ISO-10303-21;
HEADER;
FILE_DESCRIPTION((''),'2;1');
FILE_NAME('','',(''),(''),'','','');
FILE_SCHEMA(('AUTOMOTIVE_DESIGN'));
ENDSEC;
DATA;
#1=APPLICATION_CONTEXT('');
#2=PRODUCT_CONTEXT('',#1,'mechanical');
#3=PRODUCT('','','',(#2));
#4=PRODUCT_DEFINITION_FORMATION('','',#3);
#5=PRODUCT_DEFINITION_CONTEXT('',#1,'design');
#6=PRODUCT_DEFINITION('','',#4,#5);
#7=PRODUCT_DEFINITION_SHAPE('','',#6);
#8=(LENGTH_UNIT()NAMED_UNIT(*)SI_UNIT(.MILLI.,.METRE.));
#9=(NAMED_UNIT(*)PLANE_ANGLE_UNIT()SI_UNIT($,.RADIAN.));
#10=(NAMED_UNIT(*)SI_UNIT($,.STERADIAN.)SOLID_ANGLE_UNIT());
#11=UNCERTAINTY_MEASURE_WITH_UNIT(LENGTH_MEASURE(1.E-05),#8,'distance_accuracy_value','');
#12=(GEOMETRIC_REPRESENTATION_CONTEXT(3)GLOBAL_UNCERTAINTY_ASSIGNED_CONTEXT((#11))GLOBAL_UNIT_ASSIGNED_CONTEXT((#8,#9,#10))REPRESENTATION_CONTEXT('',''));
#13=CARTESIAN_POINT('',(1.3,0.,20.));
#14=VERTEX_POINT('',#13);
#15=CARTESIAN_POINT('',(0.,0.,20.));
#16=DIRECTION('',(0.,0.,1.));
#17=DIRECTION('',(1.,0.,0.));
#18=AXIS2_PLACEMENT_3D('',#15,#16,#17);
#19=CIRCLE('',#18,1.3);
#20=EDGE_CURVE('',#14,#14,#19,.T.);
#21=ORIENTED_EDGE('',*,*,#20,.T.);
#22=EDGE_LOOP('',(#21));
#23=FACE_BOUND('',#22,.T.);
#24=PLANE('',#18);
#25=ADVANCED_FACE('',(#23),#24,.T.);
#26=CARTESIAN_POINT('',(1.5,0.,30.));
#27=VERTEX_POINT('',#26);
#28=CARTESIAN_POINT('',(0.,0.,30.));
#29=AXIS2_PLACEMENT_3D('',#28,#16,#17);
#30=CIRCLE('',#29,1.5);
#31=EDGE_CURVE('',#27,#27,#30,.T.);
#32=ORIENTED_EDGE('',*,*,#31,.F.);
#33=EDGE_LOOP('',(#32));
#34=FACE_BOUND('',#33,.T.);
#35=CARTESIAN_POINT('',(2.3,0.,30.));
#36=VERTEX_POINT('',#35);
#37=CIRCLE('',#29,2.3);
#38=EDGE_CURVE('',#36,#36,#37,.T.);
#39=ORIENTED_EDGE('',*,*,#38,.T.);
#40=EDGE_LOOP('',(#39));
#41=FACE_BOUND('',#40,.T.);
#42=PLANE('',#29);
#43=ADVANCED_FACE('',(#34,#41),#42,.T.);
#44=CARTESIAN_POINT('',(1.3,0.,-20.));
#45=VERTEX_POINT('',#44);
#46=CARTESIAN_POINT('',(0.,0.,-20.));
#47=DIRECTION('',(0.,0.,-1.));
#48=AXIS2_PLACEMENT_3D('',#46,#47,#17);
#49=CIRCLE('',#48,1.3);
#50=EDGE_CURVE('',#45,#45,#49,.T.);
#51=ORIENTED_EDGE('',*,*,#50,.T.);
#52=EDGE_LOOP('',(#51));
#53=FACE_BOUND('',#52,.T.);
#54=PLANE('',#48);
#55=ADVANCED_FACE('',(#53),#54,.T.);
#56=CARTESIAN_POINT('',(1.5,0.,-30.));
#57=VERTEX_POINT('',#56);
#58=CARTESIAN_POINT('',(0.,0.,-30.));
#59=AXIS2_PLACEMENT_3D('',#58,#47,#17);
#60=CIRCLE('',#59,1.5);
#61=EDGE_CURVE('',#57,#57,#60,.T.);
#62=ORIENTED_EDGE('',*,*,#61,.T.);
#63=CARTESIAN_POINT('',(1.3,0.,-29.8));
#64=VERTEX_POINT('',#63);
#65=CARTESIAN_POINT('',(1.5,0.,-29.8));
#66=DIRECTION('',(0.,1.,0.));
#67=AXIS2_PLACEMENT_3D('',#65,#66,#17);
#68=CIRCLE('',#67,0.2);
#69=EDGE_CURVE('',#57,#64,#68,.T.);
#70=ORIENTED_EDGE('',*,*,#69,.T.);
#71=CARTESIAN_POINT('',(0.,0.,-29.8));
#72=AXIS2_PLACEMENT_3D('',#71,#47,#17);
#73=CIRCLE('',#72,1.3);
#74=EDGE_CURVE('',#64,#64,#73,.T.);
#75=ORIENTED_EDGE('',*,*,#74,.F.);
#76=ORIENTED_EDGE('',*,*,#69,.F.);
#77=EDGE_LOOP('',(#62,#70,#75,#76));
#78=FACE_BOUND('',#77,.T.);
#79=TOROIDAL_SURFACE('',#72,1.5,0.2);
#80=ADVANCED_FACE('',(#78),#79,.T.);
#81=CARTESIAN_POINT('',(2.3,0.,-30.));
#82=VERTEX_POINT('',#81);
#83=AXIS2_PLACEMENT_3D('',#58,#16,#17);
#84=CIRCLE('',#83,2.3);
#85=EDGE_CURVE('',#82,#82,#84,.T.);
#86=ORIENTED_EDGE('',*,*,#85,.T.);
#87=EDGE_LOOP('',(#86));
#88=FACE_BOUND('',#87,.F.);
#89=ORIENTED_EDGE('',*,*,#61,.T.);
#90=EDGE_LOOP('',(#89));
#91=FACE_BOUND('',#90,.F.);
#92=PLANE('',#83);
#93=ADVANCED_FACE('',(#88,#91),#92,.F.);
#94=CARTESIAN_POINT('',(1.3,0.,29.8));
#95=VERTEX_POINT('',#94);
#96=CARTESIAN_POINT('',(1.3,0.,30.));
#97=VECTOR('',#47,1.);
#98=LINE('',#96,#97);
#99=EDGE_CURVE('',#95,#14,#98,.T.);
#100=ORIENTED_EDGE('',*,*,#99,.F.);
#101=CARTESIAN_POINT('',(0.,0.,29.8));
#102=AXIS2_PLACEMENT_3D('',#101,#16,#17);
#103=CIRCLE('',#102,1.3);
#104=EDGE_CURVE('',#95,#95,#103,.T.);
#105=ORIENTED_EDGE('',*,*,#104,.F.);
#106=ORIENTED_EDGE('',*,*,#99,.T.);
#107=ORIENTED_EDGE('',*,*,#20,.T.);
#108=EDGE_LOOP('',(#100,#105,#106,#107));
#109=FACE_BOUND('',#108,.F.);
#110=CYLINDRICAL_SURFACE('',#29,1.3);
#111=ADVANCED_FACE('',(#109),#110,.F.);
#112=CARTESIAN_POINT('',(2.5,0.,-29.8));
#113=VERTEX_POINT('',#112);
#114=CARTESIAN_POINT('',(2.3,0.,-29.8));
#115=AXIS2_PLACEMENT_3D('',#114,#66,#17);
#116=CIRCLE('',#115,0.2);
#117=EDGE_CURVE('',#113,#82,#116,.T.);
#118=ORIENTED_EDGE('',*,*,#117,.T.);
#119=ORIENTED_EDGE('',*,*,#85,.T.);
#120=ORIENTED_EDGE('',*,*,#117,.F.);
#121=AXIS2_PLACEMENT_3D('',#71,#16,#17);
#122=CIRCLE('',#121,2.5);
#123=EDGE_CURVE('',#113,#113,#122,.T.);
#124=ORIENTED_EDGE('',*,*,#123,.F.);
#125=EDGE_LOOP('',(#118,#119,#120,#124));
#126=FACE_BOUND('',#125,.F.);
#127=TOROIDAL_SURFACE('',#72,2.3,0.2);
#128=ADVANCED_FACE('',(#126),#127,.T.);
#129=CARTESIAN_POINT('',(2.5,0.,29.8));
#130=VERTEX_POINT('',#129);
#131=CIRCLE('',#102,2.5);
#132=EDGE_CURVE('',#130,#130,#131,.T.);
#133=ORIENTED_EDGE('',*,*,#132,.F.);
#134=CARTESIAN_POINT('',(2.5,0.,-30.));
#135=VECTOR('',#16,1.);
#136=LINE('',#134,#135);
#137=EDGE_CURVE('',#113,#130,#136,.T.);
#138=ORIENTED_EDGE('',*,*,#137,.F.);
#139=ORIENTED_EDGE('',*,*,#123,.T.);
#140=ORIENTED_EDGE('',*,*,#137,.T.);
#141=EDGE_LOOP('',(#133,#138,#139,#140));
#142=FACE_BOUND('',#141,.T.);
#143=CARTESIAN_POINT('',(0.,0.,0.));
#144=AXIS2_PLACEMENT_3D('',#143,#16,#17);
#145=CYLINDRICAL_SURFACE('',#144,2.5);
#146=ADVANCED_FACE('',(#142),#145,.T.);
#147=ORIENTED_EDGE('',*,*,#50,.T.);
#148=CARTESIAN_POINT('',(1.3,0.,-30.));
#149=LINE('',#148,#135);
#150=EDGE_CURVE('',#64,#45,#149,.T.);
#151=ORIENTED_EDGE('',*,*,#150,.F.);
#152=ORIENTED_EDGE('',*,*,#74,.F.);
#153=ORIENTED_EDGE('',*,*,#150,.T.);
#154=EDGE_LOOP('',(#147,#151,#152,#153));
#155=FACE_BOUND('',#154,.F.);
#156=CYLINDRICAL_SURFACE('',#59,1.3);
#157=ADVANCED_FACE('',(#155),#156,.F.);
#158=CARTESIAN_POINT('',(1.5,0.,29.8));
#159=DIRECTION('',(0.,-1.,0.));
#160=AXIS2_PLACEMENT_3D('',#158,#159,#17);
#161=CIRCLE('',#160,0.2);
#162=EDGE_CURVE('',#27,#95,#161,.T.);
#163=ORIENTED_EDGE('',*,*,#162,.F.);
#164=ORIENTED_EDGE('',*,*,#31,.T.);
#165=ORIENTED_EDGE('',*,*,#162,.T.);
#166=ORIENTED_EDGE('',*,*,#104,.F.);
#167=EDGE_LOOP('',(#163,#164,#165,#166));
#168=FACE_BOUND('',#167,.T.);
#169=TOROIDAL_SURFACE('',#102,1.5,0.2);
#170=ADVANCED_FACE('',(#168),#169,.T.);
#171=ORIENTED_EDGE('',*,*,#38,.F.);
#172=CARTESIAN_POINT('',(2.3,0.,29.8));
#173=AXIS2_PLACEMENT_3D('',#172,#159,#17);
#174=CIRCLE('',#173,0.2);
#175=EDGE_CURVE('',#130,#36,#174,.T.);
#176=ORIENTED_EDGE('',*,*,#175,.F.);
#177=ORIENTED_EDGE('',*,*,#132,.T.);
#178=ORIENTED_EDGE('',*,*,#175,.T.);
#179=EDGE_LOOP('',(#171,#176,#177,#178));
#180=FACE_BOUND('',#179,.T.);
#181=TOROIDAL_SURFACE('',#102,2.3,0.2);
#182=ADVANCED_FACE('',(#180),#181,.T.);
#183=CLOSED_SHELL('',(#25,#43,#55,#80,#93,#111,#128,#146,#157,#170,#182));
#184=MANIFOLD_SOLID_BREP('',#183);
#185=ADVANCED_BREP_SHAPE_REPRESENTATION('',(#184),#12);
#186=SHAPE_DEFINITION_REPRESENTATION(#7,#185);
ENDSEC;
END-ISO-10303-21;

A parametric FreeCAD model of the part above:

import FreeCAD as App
import Part
import Sketcher
from FreeCAD import Vector
Q = App.Units.Quantity


def edges_at(feature, points):
    """Names of the edges that pass closest to the given points."""
    edges = feature.Shape.Edges
    near = lambda p: min(range(len(edges)), key=lambda i: edges[i].distToShape(Part.Vertex(*p))[0])
    return sorted({f"Edge{near(p) + 1}" for p in points})

doc = App.newDocument("Part")
body = doc.addObject("PartDesign::Body", "Body")

sketch1 = body.newObject("Sketcher::SketchObject", "Sketch")
sketch1.AttachmentSupport = (doc.getObject("XY_Plane"), [""])
sketch1.MapMode = "FlatFace"
sketch1.addGeometry(Part.Circle(Vector(0, 0, 0), Vector(0, 0, 1), 2.5), False)
sketch1.addConstraint([
    Sketcher.Constraint("Coincident", 0, 3, -1, 1),
    Sketcher.Constraint("Diameter", 0, Q("5 mm")),
])
pad1 = body.newObject("PartDesign::Pad", "Pad")
pad1.Profile = sketch1
pad1.Length = 60
pad1.Midplane = True

sketch2 = body.newObject("Sketcher::SketchObject", "Sketch001")
sketch2.AttachmentSupport = (doc.getObject("XY_Plane"), [""])
sketch2.MapMode = "FlatFace"
sketch2.AttachmentOffset = App.Placement(Vector(0, 0, 30), App.Rotation())
sketch2.addGeometry(Part.Circle(Vector(0, 0, 0), Vector(0, 0, 1), 1.3), False)
sketch2.addConstraint([
    Sketcher.Constraint("Coincident", 0, 3, -1, 1),
    Sketcher.Constraint("Diameter", 0, Q("2.6 mm")),
])
pocket1 = body.newObject("PartDesign::Pocket", "Pocket")
pocket1.Profile = sketch2
pocket1.Length = 10

sketch3 = body.newObject("Sketcher::SketchObject", "Sketch002")
sketch3.AttachmentSupport = (doc.getObject("XY_Plane"), [""])
sketch3.MapMode = "FlatFace"
sketch3.AttachmentOffset = App.Placement(Vector(0, 0, -30), App.Rotation())
sketch3.addGeometry(Part.Circle(Vector(0, 0, 0), Vector(0, 0, 1), 1.3), False)
sketch3.addConstraint([
    Sketcher.Constraint("Coincident", 0, 3, -1, 1),
    Sketcher.Constraint("Diameter", 0, Q("2.6 mm")),
])
pocket2 = body.newObject("PartDesign::Pocket", "Pocket001")
pocket2.Profile = sketch3
pocket2.Length = 10
pocket2.Reversed = True
doc.recompute()

fillet = body.newObject("PartDesign::Fillet", "Fillet")
fillet.Base = (pocket2, edges_at(pocket2, [
    (-2.5, 0, -30),
    (-1.3, 0, -30),
    (-2.5, 0, 30),
    (-1.3, 0, 30),
]))
fillet.Radius = 0.2

doc.recompute()
